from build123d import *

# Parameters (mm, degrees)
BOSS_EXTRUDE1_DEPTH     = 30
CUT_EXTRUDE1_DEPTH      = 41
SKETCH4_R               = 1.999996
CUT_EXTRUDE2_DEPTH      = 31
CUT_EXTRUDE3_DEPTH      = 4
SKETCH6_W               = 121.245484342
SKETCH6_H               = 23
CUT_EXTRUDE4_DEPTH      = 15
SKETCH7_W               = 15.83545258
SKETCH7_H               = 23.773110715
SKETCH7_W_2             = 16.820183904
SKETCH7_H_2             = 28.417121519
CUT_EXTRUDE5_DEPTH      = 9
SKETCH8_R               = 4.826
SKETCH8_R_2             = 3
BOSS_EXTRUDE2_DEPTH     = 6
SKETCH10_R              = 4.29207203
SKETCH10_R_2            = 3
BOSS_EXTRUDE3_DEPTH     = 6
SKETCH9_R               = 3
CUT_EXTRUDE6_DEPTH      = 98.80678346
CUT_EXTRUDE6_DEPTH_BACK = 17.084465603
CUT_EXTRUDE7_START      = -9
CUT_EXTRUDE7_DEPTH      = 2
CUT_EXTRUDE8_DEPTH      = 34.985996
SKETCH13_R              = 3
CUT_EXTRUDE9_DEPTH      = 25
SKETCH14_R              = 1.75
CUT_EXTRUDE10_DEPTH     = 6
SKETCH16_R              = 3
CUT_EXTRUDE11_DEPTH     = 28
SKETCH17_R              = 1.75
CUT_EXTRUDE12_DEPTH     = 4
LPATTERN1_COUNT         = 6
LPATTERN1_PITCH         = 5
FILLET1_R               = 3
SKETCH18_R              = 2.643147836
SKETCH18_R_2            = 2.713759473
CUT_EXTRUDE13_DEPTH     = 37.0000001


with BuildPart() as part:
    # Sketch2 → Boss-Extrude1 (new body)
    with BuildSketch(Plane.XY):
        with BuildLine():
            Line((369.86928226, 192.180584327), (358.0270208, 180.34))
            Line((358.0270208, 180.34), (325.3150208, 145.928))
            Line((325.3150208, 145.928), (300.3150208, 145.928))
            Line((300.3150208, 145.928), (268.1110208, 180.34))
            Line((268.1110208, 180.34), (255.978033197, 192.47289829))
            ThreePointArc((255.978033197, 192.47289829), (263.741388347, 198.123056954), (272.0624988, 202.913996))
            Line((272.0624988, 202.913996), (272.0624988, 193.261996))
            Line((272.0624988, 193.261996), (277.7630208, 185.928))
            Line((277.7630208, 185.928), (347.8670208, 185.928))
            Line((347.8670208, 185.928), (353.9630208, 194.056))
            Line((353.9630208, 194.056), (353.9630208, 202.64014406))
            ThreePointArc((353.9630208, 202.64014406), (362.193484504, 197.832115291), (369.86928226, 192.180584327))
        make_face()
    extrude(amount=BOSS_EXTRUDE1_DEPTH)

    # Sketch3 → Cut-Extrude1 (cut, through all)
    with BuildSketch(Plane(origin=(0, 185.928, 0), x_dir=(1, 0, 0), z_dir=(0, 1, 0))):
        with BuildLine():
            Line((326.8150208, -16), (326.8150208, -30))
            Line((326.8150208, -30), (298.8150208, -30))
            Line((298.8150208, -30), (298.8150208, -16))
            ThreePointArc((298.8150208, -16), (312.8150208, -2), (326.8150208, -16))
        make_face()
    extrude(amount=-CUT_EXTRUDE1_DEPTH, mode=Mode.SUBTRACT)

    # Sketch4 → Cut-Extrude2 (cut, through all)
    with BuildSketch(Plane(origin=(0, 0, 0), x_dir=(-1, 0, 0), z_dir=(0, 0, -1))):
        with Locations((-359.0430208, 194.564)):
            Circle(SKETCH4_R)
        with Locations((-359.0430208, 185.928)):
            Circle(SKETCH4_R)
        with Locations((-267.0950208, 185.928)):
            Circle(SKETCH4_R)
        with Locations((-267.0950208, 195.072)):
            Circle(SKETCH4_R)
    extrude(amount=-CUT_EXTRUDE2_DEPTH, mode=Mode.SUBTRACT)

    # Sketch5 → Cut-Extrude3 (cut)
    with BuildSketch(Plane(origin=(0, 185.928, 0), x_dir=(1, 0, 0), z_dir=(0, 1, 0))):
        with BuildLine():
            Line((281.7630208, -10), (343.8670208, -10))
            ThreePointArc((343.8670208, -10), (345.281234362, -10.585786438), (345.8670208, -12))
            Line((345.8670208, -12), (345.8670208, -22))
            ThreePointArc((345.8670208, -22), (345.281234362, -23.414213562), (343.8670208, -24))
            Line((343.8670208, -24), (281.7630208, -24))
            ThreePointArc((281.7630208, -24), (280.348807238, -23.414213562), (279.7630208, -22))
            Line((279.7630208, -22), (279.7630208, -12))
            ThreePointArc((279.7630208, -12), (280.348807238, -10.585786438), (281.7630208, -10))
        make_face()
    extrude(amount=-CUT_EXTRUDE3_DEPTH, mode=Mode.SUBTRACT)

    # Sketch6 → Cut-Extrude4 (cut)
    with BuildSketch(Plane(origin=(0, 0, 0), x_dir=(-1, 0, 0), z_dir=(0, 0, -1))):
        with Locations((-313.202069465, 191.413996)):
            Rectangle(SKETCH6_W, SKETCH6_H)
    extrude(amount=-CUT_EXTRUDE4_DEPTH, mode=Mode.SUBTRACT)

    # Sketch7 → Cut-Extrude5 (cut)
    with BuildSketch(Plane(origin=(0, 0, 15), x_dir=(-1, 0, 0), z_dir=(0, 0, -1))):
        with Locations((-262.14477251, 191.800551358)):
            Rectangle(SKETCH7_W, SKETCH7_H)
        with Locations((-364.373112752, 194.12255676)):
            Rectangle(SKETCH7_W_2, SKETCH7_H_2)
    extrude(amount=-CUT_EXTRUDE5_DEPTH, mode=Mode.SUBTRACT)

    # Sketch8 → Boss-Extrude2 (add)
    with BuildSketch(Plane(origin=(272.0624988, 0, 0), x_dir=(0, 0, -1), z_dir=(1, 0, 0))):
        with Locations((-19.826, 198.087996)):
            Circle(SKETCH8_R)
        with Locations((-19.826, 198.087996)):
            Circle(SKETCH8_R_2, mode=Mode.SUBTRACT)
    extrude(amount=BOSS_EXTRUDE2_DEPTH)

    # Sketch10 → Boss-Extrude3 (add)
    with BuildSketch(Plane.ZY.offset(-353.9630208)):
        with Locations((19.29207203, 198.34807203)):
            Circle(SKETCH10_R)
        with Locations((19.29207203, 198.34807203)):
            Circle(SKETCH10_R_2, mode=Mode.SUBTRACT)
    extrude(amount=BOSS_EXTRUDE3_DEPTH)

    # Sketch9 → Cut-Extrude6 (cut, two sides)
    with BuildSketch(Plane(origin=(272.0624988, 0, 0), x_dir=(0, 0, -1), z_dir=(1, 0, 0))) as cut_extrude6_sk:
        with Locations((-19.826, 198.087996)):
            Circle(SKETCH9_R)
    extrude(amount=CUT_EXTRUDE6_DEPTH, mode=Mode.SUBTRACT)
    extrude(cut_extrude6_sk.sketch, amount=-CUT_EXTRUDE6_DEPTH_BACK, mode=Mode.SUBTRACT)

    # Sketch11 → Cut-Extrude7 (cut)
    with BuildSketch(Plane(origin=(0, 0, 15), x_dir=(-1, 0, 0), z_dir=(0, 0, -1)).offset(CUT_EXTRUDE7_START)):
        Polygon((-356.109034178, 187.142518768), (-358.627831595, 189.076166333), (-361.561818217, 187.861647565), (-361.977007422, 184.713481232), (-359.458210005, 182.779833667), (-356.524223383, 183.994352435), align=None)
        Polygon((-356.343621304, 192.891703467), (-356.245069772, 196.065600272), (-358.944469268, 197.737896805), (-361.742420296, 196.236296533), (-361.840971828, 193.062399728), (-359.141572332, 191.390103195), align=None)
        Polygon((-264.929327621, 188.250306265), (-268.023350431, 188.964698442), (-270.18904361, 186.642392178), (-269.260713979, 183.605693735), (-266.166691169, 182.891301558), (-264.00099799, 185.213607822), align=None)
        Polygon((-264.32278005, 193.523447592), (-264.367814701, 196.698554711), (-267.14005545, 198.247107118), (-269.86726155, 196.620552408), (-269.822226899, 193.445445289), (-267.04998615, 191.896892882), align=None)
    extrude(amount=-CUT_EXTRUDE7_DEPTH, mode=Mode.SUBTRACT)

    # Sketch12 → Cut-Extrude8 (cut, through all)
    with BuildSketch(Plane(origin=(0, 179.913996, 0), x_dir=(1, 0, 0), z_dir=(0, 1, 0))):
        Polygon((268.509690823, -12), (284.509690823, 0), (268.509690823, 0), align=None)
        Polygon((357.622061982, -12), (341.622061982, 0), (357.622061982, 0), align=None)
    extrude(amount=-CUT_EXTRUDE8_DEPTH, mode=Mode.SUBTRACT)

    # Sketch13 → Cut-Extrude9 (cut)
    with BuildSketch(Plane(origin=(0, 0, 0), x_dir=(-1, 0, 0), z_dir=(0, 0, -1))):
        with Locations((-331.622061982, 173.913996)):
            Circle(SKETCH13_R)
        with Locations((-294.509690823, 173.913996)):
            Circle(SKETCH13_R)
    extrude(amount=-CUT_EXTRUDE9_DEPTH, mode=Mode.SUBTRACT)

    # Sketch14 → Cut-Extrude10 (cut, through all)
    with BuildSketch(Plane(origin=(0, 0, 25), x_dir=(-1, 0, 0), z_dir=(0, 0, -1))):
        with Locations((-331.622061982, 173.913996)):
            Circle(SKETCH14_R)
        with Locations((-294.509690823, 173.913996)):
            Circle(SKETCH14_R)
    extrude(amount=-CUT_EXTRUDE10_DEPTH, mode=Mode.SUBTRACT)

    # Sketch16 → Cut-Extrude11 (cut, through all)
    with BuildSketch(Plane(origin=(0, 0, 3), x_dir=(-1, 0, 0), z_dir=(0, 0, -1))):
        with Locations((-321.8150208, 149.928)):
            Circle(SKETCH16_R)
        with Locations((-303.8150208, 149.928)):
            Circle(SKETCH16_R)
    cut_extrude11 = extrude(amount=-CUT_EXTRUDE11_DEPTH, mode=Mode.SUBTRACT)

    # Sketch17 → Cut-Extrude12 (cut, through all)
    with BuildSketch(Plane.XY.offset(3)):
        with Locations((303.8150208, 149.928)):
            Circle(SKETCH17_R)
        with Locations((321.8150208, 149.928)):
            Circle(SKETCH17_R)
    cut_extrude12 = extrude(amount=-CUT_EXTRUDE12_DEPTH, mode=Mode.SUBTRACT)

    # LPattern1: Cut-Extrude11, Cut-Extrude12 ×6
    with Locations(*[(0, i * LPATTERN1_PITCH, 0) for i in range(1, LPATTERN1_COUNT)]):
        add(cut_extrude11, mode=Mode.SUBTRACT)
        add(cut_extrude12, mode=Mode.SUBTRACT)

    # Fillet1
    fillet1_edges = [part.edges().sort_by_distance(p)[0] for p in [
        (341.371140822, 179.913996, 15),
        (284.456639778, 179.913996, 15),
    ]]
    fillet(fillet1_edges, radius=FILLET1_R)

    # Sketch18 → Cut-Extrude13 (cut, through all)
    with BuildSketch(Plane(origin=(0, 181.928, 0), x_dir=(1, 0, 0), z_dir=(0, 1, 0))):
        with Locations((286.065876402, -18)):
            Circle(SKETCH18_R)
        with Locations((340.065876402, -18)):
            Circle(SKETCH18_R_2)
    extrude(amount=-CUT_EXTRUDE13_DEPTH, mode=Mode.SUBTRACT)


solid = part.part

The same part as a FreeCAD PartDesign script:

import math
import FreeCAD as App
import Part
import Sketcher
from FreeCAD import Vector


def edges_at(feature, points):
    """Names of the edges that pass closest to the given points."""
    edges = feature.Shape.Edges
    near = lambda p: min(range(len(edges)), key=lambda i: edges[i].distToShape(Part.Vertex(*p))[0])
    return sorted({f"Edge{near(p) + 1}" for p in points})


def add_polygon(sketch, points):
    """Adds a closed chain of lines whose ends are joined by coincident constraints."""
    first, n = sketch.GeometryCount, len(points)
    for a, b in zip(points, points[1:] + points[:1]):
        sketch.addGeometry(Part.LineSegment(App.Vector(*a, 0), App.Vector(*b, 0)), False)
    for i in range(n):
        sketch.addConstraint(Sketcher.Constraint("Coincident", first + i, 2, first + (i + 1) % n, 1))

doc = App.newDocument("Part")
body = doc.addObject("PartDesign::Body", "Body")

sketch1 = doc.addObject("Sketcher::SketchObject", "Sketch")
body.addObject(sketch1)
sketch1.AttachmentSupport = (doc.XY_Plane, [""])
sketch1.MapMode = "FlatFace"
sketch1.addGeometry(Part.LineSegment(Vector(358, 180, 0), Vector(370, 192, 0)), False)
sketch1.addGeometry(Part.ArcOfCircle(Part.Circle(Vector(313, 123, 0), Vector(0, 0, 1), 90), math.radians(50.6), math.radians(62.74)), False)
sketch1.addGeometry(Part.LineSegment(Vector(354, 203, 0), Vector(354, 194, 0)), False)
sketch1.addGeometry(Part.LineSegment(Vector(354, 194, 0), Vector(348, 186, 0)), False)
sketch1.addGeometry(Part.LineSegment(Vector(348, 186, 0), Vector(278, 186, 0)), False)
sketch1.addGeometry(Part.LineSegment(Vector(278, 186, 0), Vector(272, 193, 0)), False)
sketch1.addGeometry(Part.LineSegment(Vector(272, 193, 0), Vector(272, 203, 0)), False)
sketch1.addGeometry(Part.ArcOfCircle(Part.Circle(Vector(313, 123, 0), Vector(0, 0, 1), 90), math.radians(116.87), math.radians(129.1)), False)
sketch1.addGeometry(Part.LineSegment(Vector(256, 192, 0), Vector(268, 180, 0)), False)
sketch1.addGeometry(Part.LineSegment(Vector(268, 180, 0), Vector(300, 146, 0)), False)
sketch1.addGeometry(Part.LineSegment(Vector(300, 146, 0), Vector(325, 146, 0)), False)
sketch1.addGeometry(Part.LineSegment(Vector(325, 146, 0), Vector(358, 180, 0)), False)
sketch1.addConstraint(Sketcher.Constraint("Coincident", 0, 2, 1, 1))
sketch1.addConstraint(Sketcher.Constraint("Coincident", 1, 2, 2, 1))
sketch1.addConstraint(Sketcher.Constraint("Coincident", 2, 2, 3, 1))
sketch1.addConstraint(Sketcher.Constraint("Coincident", 3, 2, 4, 1))
sketch1.addConstraint(Sketcher.Constraint("Coincident", 4, 2, 5, 1))
sketch1.addConstraint(Sketcher.Constraint("Coincident", 5, 2, 6, 1))
sketch1.addConstraint(Sketcher.Constraint("Coincident", 6, 2, 7, 1))
sketch1.addConstraint(Sketcher.Constraint("Coincident", 7, 2, 8, 1))
sketch1.addConstraint(Sketcher.Constraint("Coincident", 8, 2, 9, 1))
sketch1.addConstraint(Sketcher.Constraint("Coincident", 9, 2, 10, 1))
sketch1.addConstraint(Sketcher.Constraint("Coincident", 10, 2, 11, 1))
sketch1.addConstraint(Sketcher.Constraint("Coincident", 11, 2, 0, 1))
sketch1.addConstraint(Sketcher.Constraint("Vertical", 2))
sketch1.addConstraint(Sketcher.Constraint("Horizontal", 4))
sketch1.addConstraint(Sketcher.Constraint("Vertical", 6))
sketch1.addConstraint(Sketcher.Constraint("Horizontal", 10))
sketch1.addConstraint(Sketcher.Constraint("Coincident", 7, 3, 1, 3))
sketch1.addConstraint(Sketcher.Constraint("Equal", 1, 7))
sketch1.addConstraint(Sketcher.Constraint("Horizontal", 8, 2, 11, 2))
sketch1.addConstraint(Sketcher.Constraint("Radius", 1, 89.999998))
sketch1.addConstraint(Sketcher.Constraint("DistanceX", 10, 1, 10, 2, 25.0))
sketch1.addConstraint(Sketcher.Constraint("DistanceY", 9, 2, 4, 2, 40.0))
sketch1.addConstraint(Sketcher.Constraint("DistanceX", 4, 2, 2, 2, 76.2))
sketch1.addConstraint(Sketcher.Constraint("Distance", 3, 10.16))
sketch1.addConstraint(Sketcher.Constraint("DistanceX", 4, 2, 4, 1, 70.104))
sketch1.addConstraint(Sketcher.Constraint("DistanceY", 6, 1, 6, 2, 9.652))
sketch1.addConstraint(Sketcher.Constraint("DistanceY", -1, 1, 8, 2, 180.34))
sketch1.addConstraint(Sketcher.Constraint("DistanceX", 3, 2, 11, 2, 10.16))
sketch1.addConstraint(Sketcher.Constraint("DistanceY", -1, 1, 2, 2, 194.056))
sketch1.addConstraint(Sketcher.Constraint("DistanceX", 8, 2, 4, 2, 9.652))
sketch1.addConstraint(Sketcher.Constraint("DistanceX", 4, 2, 9, 2, 22.552))
sketch1.addConstraint(Sketcher.Constraint("Distance", 0, 16.746301))
sketch1.addConstraint(Sketcher.Constraint("DistanceX", -1, 1, 5, 2, 272.062499))
sketch1.addConstraint(Sketcher.Constraint("DistanceY", -1, 1, 7, 2, 192.472898))
sketch1.addConstraint(Sketcher.Constraint("DistanceX", 1, 3, 0, 2, 57.124499))
sketch1.addConstraint(Sketcher.Constraint("Distance", 5, 9.288888))
sketch1.addConstraint(Sketcher.Constraint("DistanceY", 2, 2, 2, 1, 8.584144))
pad1 = doc.addObject("PartDesign::Pad", "Pad")
body.addObject(pad1)
pad1.Profile = sketch1
pad1.Length = 30

sketch2 = doc.addObject("Sketcher::SketchObject", "Sketch001")
body.addObject(sketch2)
sketch2.AttachmentSupport = (doc.XZ_Plane, [""])
sketch2.MapMode = "FlatFace"
sketch2.AttachmentOffset = App.Placement(Vector(0, 0, -185.928), App.Rotation())
sketch2.addGeometry(Part.LineSegment(Vector(327, 30, 0), Vector(327, 16, 0)), False)
sketch2.addGeometry(Part.ArcOfCircle(Part.Circle(Vector(313, 16, 0), Vector(0, 0, 1), 14), math.radians(180), math.radians(360)), False)
sketch2.addGeometry(Part.LineSegment(Vector(299, 16, 0), Vector(299, 30, 0)), False)
sketch2.addGeometry(Part.LineSegment(Vector(299, 30, 0), Vector(327, 30, 0)), False)
sketch2.addConstraint(Sketcher.Constraint("Tangent", 0, 2, 1, 2))
sketch2.addConstraint(Sketcher.Constraint("Tangent", 1, 1, 2, 1))
sketch2.addConstraint(Sketcher.Constraint("Coincident", 2, 2, 3, 1))
sketch2.addConstraint(Sketcher.Constraint("Coincident", 3, 2, 0, 1))
sketch2.addConstraint(Sketcher.Constraint("Vertical", 0))
sketch2.addConstraint(Sketcher.Constraint("Vertical", 2))
sketch2.addConstraint(Sketcher.Constraint("Horizontal", 3))
sketch2.addConstraint(Sketcher.Constraint("Radius", 1, 14.0))
sketch2.addConstraint(Sketcher.Constraint("DistanceY", 0, 2, 0, 1, 14.0))
sketch2.addConstraint(Sketcher.Constraint("DistanceY", -1, 1, 1, 3, 16.0))
sketch2.addConstraint(Sketcher.Constraint("DistanceX", -1, 1, 1, 3, 312.815021))
pocket1 = doc.addObject("PartDesign::Pocket", "Pocket")
body.addObject(pocket1)
pocket1.Profile = sketch2
pocket1.Type = "ThroughAll"
pocket1.Reversed = True

sketch3 = doc.addObject("Sketcher::SketchObject", "Sketch002")
body.addObject(sketch3)
sketch3.AttachmentSupport = (doc.XY_Plane, [""])
sketch3.MapMode = "FlatFace"
sketch3.addGeometry(Part.Circle(Vector(359, 194.6, 0), Vector(0, 0, 1), 2), False)
sketch3.addGeometry(Part.Circle(Vector(359, 185.9, 0), Vector(0, 0, 1), 2), False)
sketch3.addGeometry(Part.Circle(Vector(267.1, 185.9, 0), Vector(0, 0, 1), 2), False)
sketch3.addGeometry(Part.Circle(Vector(267.1, 195.1, 0), Vector(0, 0, 1), 2), False)
sketch3.addConstraint(Sketcher.Constraint("Equal", 0, 1))
sketch3.addConstraint(Sketcher.Constraint("Equal", 1, 2))
sketch3.addConstraint(Sketcher.Constraint("Equal", 2, 3))
sketch3.addConstraint(Sketcher.Constraint("Horizontal", 1, 3, 2, 3))
sketch3.addConstraint(Sketcher.Constraint("Vertical", 0, 3, 1, 3))
sketch3.addConstraint(Sketcher.Constraint("Vertical", 2, 3, 3, 3))
sketch3.addConstraint(Sketcher.Constraint("Diameter", 0, 3.999992))
sketch3.addConstraint(Sketcher.Constraint("DistanceY", -1, 1, 0, 3, 194.564))
sketch3.addConstraint(Sketcher.Constraint("DistanceY", -1, 1, 1, 3, 185.928))
sketch3.addConstraint(Sketcher.Constraint("DistanceY", -1, 1, 3, 3, 195.072))
sketch3.addConstraint(Sketcher.Constraint("DistanceX", 2, 3, 1, 3, 91.948))
sketch3.addConstraint(Sketcher.Constraint("DistanceX", -1, 1, 0, 3, 359.043021))
pocket2 = doc.addObject("PartDesign::Pocket", "Pocket001")
body.addObject(pocket2)
pocket2.Profile = sketch3
pocket2.Type = "ThroughAll"
pocket2.Reversed = True

sketch4 = doc.addObject("Sketcher::SketchObject", "Sketch003")
body.addObject(sketch4)
sketch4.AttachmentSupport = (doc.XZ_Plane, [""])
sketch4.MapMode = "FlatFace"
sketch4.AttachmentOffset = App.Placement(Vector(0, 0, -185.928), App.Rotation())
sketch4.addGeometry(Part.LineSegment(Vector(343.9, 10, 0), Vector(281.8, 10, 0)), False)
sketch4.addGeometry(Part.ArcOfCircle(Part.Circle(Vector(281.8, 12, 0), Vector(0, 0, 1), 2), math.radians(-180), math.radians(-90)), False)
sketch4.addGeometry(Part.LineSegment(Vector(279.8, 12, 0), Vector(279.8, 22, 0)), False)
sketch4.addGeometry(Part.ArcOfCircle(Part.Circle(Vector(281.8, 22, 0), Vector(0, 0, 1), 2), math.radians(90), math.radians(180)), False)
sketch4.addGeometry(Part.LineSegment(Vector(281.8, 24, 0), Vector(343.9, 24, 0)), False)
sketch4.addGeometry(Part.ArcOfCircle(Part.Circle(Vector(343.9, 22, 0), Vector(0, 0, 1), 2), math.radians(0), math.radians(90)), False)
sketch4.addGeometry(Part.LineSegment(Vector(345.9, 22, 0), Vector(345.9, 12, 0)), False)
sketch4.addGeometry(Part.ArcOfCircle(Part.Circle(Vector(343.9, 12, 0), Vector(0, 0, 1), 2), math.radians(-90), math.radians(0)), False)
sketch4.addConstraint(Sketcher.Constraint("Tangent", 0, 2, 1, 2))
sketch4.addConstraint(Sketcher.Constraint("Tangent", 1, 1, 2, 1))
sketch4.addConstraint(Sketcher.Constraint("Tangent", 2, 2, 3, 2))
sketch4.addConstraint(Sketcher.Constraint("Tangent", 3, 1, 4, 1))
sketch4.addConstraint(Sketcher.Constraint("Tangent", 4, 2, 5, 2))
sketch4.addConstraint(Sketcher.Constraint("Tangent", 5, 1, 6, 1))
sketch4.addConstraint(Sketcher.Constraint("Tangent", 6, 2, 7, 2))
sketch4.addConstraint(Sketcher.Constraint("Tangent", 7, 1, 0, 1))
sketch4.addConstraint(Sketcher.Constraint("Horizontal", 0))
sketch4.addConstraint(Sketcher.Constraint("Vertical", 2))
sketch4.addConstraint(Sketcher.Constraint("Horizontal", 4))
sketch4.addConstraint(Sketcher.Constraint("Vertical", 6))
sketch4.addConstraint(Sketcher.Constraint("Equal", 1, 3))
sketch4.addConstraint(Sketcher.Constraint("Equal", 3, 5))
sketch4.addConstraint(Sketcher.Constraint("Equal", 5, 7))
sketch4.addConstraint(Sketcher.Constraint("Radius", 1, 2.0))
sketch4.addConstraint(Sketcher.Constraint("DistanceY", 2, 1, 2, 2, 10.0))
sketch4.addConstraint(Sketcher.Constraint("DistanceY", -1, 1, 1, 3, 12.0))
sketch4.addConstraint(Sketcher.Constraint("DistanceX", 0, 2, 0, 1, 62.104))
sketch4.addConstraint(Sketcher.Constraint("DistanceX", -1, 1, 1, 3, 281.763021))
pocket3 = doc.addObject("PartDesign::Pocket", "Pocket002")
body.addObject(pocket3)
pocket3.Profile = sketch4
pocket3.Length = 4
pocket3.Reversed = True

sketch5 = doc.addObject("Sketcher::SketchObject", "Sketch004")
body.addObject(sketch5)
sketch5.AttachmentSupport = (doc.XY_Plane, [""])
sketch5.MapMode = "FlatFace"
add_polygon(sketch5, [(374, 203), (374, 180), (253, 180), (253, 203)])
sketch5.addConstraint(Sketcher.Constraint("Vertical", 0))
sketch5.addConstraint(Sketcher.Constraint("Horizontal", 1))
sketch5.addConstraint(Sketcher.Constraint("Vertical", 2))
sketch5.addConstraint(Sketcher.Constraint("Horizontal", 3))
sketch5.addConstraint(Sketcher.Constraint("DistanceY", 0, 2, 0, 1, 23.0))
sketch5.addConstraint(Sketcher.Constraint("DistanceX", 1, 2, 1, 1, 121.245484))
sketch5.addConstraint(Sketcher.Constraint("DistanceX", -1, 1, 0, 2, 373.824812))
sketch5.addConstraint(Sketcher.Constraint("DistanceY", -1, 1, 0, 2, 179.913996))
pocket4 = doc.addObject("PartDesign::Pocket", "Pocket003")
body.addObject(pocket4)
pocket4.Profile = sketch5
pocket4.Length = 15
pocket4.Reversed = True

sketch6 = doc.addObject("Sketcher::SketchObject", "Sketch005")
body.addObject(sketch6)
sketch6.AttachmentSupport = (doc.XY_Plane, [""])
sketch6.MapMode = "FlatFace"
sketch6.AttachmentOffset = App.Placement(Vector(0, 0, 15), App.Rotation())
add_polygon(sketch6, [(270, 204), (270, 180), (254, 180), (254, 204)])
add_polygon(sketch6, [(373, 208), (373, 180), (356, 180), (356, 208)])
sketch6.addConstraint(Sketcher.Constraint("Vertical", 0))
sketch6.addConstraint(Sketcher.Constraint("Horizontal", 1))
sketch6.addConstraint(Sketcher.Constraint("Vertical", 2))
sketch6.addConstraint(Sketcher.Constraint("Horizontal", 3))
sketch6.addConstraint(Sketcher.Constraint("Vertical", 4))
sketch6.addConstraint(Sketcher.Constraint("Horizontal", 5))
sketch6.addConstraint(Sketcher.Constraint("Vertical", 6))
sketch6.addConstraint(Sketcher.Constraint("Horizontal", 7))
sketch6.addConstraint(Sketcher.Constraint("Horizontal", 1, 2, 4, 2))
sketch6.addConstraint(Sketcher.Constraint("DistanceY", 0, 2, 0, 1, 23.773111))
sketch6.addConstraint(Sketcher.Constraint("DistanceY", 4, 2, 4, 1, 28.417122))
sketch6.addConstraint(Sketcher.Constraint("DistanceX", -1, 1, 0, 2, 270.062499))
sketch6.addConstraint(Sketcher.Constraint("DistanceX", 1, 2, 1, 1, 15.835453))
sketch6.addConstraint(Sketcher.Constraint("DistanceX", 5, 2, 5, 1, 16.820184))
sketch6.addConstraint(Sketcher.Constraint("DistanceX", -1, 1, 5, 2, 355.963021))
sketch6.addConstraint(Sketcher.Constraint("DistanceY", -1, 1, 0, 2, 179.913996))
pocket5 = doc.addObject("PartDesign::Pocket", "Pocket004")
body.addObject(pocket5)
pocket5.Profile = sketch6
pocket5.Length = 9
pocket5.Reversed = True

sketch7 = doc.addObject("Sketcher::SketchObject", "Sketch006")
body.addObject(sketch7)
sketch7.AttachmentSupport = (doc.YZ_Plane, [""])
sketch7.MapMode = "FlatFace"
sketch7.AttachmentOffset = App.Placement(Vector(0, 0, 272.062499), App.Rotation())
sketch7.addGeometry(Part.Circle(Vector(198.1, 19.8, 0), Vector(0, 0, 1), 4.8), False)
sketch7.addGeometry(Part.Circle(Vector(198.1, 19.8, 0), Vector(0, 0, 1), 3), False)
sketch7.addConstraint(Sketcher.Constraint("Coincident", 1, 3, 0, 3))
sketch7.addConstraint(Sketcher.Constraint("Diameter", 1, 6.0))
sketch7.addConstraint(Sketcher.Constraint("Diameter", 0, 9.652))
sketch7.addConstraint(Sketcher.Constraint("DistanceY", -1, 1, 0, 3, 19.826))
sketch7.addConstraint(Sketcher.Constraint("DistanceX", -1, 1, 0, 3, 198.087996))
pad2 = doc.addObject("PartDesign::Pad", "Pad001")
body.addObject(pad2)
pad2.Profile = sketch7
pad2.Length = 6

sketch8 = doc.addObject("Sketcher::SketchObject", "Sketch007")
body.addObject(sketch8)
sketch8.AttachmentSupport = (doc.YZ_Plane, [""])
sketch8.MapMode = "FlatFace"
sketch8.AttachmentOffset = App.Placement(Vector(0, 0, 353.963021), App.Rotation())
sketch8.addGeometry(Part.Circle(Vector(198.3, 19.3, 0), Vector(0, 0, 1), 4.3), False)
sketch8.addGeometry(Part.Circle(Vector(198.3, 19.3, 0), Vector(0, 0, 1), 3), False)
sketch8.addConstraint(Sketcher.Constraint("Coincident", 1, 3, 0, 3))
sketch8.addConstraint(Sketcher.Constraint("Diameter", 1, 6.0))
sketch8.addConstraint(Sketcher.Constraint("Diameter", 0, 8.584144))
sketch8.addConstraint(Sketcher.Constraint("DistanceX", -1, 1, 0, 3, 198.348072))
sketch8.addConstraint(Sketcher.Constraint("DistanceY", -1, 1, 0, 3, 19.292072))
pad3 = doc.addObject("PartDesign::Pad", "Pad002")
body.addObject(pad3)
pad3.Profile = sketch8
pad3.Length = 6
pad3.Reversed = True

sketch9 = doc.addObject("Sketcher::SketchObject", "Sketch008")
body.addObject(sketch9)
sketch9.AttachmentSupport = (doc.YZ_Plane, [""])
sketch9.MapMode = "FlatFace"
sketch9.AttachmentOffset = App.Placement(Vector(0, 0, 272.062499), App.Rotation())
sketch9.addGeometry(Part.Circle(Vector(198.1, 19.8, 0), Vector(0, 0, 1), 3), False)
sketch9.addConstraint(Sketcher.Constraint("Diameter", 0, 6.0))
sketch9.addConstraint(Sketcher.Constraint("DistanceY", -1, 1, 0, 3, 19.826))
sketch9.addConstraint(Sketcher.Constraint("DistanceX", -1, 1, 0, 3, 198.087996))
pocket6 = doc.addObject("PartDesign::Pocket", "Pocket005")
body.addObject(pocket6)
pocket6.Profile = sketch9
pocket6.Type = "ThroughAll"
pocket6.Midplane = True

sketch10 = doc.addObject("Sketcher::SketchObject", "Sketch009")
body.addObject(sketch10)
sketch10.AttachmentSupport = (doc.XY_Plane, [""])
sketch10.MapMode = "FlatFace"
sketch10.AttachmentOffset = App.Placement(Vector(0, 0, 24), App.Rotation())
add_polygon(sketch10, [(356.1, 187.1), (358.6, 189.1), (361.6, 187.9), (362, 184.7), (359.5, 182.8), (356.5, 184)])
add_polygon(sketch10, [(356.3, 192.9), (356.2, 196.1), (358.9, 197.7), (361.7, 196.2), (361.8, 193.1), (359.1, 191.4)])
add_polygon(sketch10, [(264.9, 188.3), (268, 189), (270.2, 186.6), (269.3, 183.6), (266.2, 182.9), (264, 185.2)])
add_polygon(sketch10, [(264.3, 193.5), (264.4, 196.7), (267.1, 198.2), (269.9, 196.6), (269.8, 193.4), (267, 191.9)])
sketch10.addConstraint(Sketcher.Constraint("Parallel", 0, 3))
sketch10.addConstraint(Sketcher.Constraint("Parallel", 1, 4))
sketch10.addConstraint(Sketcher.Constraint("Parallel", 2, 5))
sketch10.addConstraint(Sketcher.Constraint("Parallel", 6, 9))
sketch10.addConstraint(Sketcher.Constraint("Parallel", 7, 10))
sketch10.addConstraint(Sketcher.Constraint("Parallel", 8, 11))
sketch10.addConstraint(Sketcher.Constraint("Parallel", 12, 15))
sketch10.addConstraint(Sketcher.Constraint("Parallel", 13, 16))
sketch10.addConstraint(Sketcher.Constraint("Parallel", 14, 17))
sketch10.addConstraint(Sketcher.Constraint("Parallel", 18, 21))
sketch10.addConstraint(Sketcher.Constraint("Parallel", 19, 22))
sketch10.addConstraint(Sketcher.Constraint("Parallel", 20, 23))
sketch10.addConstraint(Sketcher.Constraint("Equal", 0, 1))
sketch10.addConstraint(Sketcher.Constraint("Equal", 1, 2))
sketch10.addConstraint(Sketcher.Constraint("Equal", 2, 3))
sketch10.addConstraint(Sketcher.Constraint("Equal", 5, 6))
sketch10.addConstraint(Sketcher.Constraint("Equal", 6, 7))
sketch10.addConstraint(Sketcher.Constraint("Equal", 7, 8))
sketch10.addConstraint(Sketcher.Constraint("Equal", 8, 9))
sketch10.addConstraint(Sketcher.Constraint("Equal", 11, 12))
sketch10.addConstraint(Sketcher.Constraint("Equal", 12, 13))
sketch10.addConstraint(Sketcher.Constraint("Equal", 13, 14))
sketch10.addConstraint(Sketcher.Constraint("Equal", 14, 15))
sketch10.addConstraint(Sketcher.Constraint("Equal", 17, 18))
sketch10.addConstraint(Sketcher.Constraint("Equal", 18, 19))
sketch10.addConstraint(Sketcher.Constraint("Equal", 19, 20))
sketch10.addConstraint(Sketcher.Constraint("Equal", 20, 21))
sketch10.addConstraint(Sketcher.Constraint("DistanceY", -1, 1, 6, 2, 196.0656))
sketch10.addConstraint(Sketcher.Constraint("DistanceY", -1, 1, 9, 2, 193.0624))
sketch10.addConstraint(Sketcher.Constraint("DistanceY", -1, 1, 12, 2, 188.964698))
sketch10.addConstraint(Sketcher.Constraint("DistanceY", -1, 1, 15, 2, 182.891302))
sketch10.addConstraint(Sketcher.Constraint("DistanceX", 6, 2, 7, 2, 2.699399))
sketch10.addConstraint(Sketcher.Constraint("DistanceY", 8, 2, 7, 2, 1.5016))
sketch10.addConstraint(Sketcher.Constraint("DistanceY", 14, 2, 13, 2, 3.036698))
sketch10.addConstraint(Sketcher.Constraint("DistanceY", 17, 2, 19, 2, 9.996801))
sketch10.addConstraint(Sketcher.Constraint("DistanceX", -1, 1, 0, 2, 358.627832))
sketch10.addConstraint(Sketcher.Constraint("DistanceX", -1, 1, 1, 2, 361.561818))
sketch10.addConstraint(Sketcher.Constraint("DistanceY", -1, 1, 2, 2, 184.713481))
sketch10.addConstraint(Sketcher.Constraint("DistanceX", -1, 1, 3, 2, 359.45821))
sketch10.addConstraint(Sketcher.Constraint("DistanceY", -1, 1, 5, 2, 187.142519))
sketch10.addConstraint(Sketcher.Constraint("DistanceX", -1, 1, 6, 2, 356.24507))
sketch10.addConstraint(Sketcher.Constraint("DistanceX", -1, 1, 8, 2, 361.74242))
sketch10.addConstraint(Sketcher.Constraint("DistanceX", -1, 1, 12, 2, 268.02335))
sketch10.addConstraint(Sketcher.Constraint("DistanceX", -1, 1, 15, 2, 266.166691))
sketch10.addConstraint(Sketcher.Constraint("DistanceX", -1, 1, 20, 2, 269.867262))
sketch10.addConstraint(Sketcher.Constraint("DistanceX", -1, 1, 23, 2, 264.32278))
sketch10.addConstraint(Sketcher.Constraint("DistanceY", 17, 2, 18, 2, 8.448248))
sketch10.addConstraint(Sketcher.Constraint("DistanceX", 18, 2, 13, 2, 5.821229))
pocket7 = doc.addObject("PartDesign::Pocket", "Pocket006")
body.addObject(pocket7)
pocket7.Profile = sketch10
pocket7.Length = 2
pocket7.Reversed = True

sketch11 = doc.addObject("Sketcher::SketchObject", "Sketch010")
body.addObject(sketch11)
sketch11.AttachmentSupport = (doc.XZ_Plane, [""])
sketch11.MapMode = "FlatFace"
sketch11.AttachmentOffset = App.Placement(Vector(0, 0, -179.913996), App.Rotation())
add_polygon(sketch11, [(269, 12), (285, 0), (269, 0)])
add_polygon(sketch11, [(342, 0), (358, 12), (358, 0)])
sketch11.addConstraint(Sketcher.Constraint("Horizontal", 1))
sketch11.addConstraint(Sketcher.Constraint("Vertical", 2))
sketch11.addConstraint(Sketcher.Constraint("Vertical", 4))
sketch11.addConstraint(Sketcher.Constraint("Horizontal", 5))
sketch11.addConstraint(Sketcher.Constraint("PointOnObject", 0, 2, -1))
sketch11.addConstraint(Sketcher.Constraint("PointOnObject", 4, 2, -1))
sketch11.addConstraint(Sketcher.Constraint("Horizontal", 2, 2, 3, 2))
sketch11.addConstraint(Sketcher.Constraint("Equal", 1, 5))
sketch11.addConstraint(Sketcher.Constraint("DistanceX", 1, 2, 1, 1, 16.0))
sketch11.addConstraint(Sketcher.Constraint("DistanceY", 2, 1, 2, 2, 12.0))
sketch11.addConstraint(Sketcher.Constraint("DistanceX", -1, 1, 0, 2, 284.509691))
sketch11.addConstraint(Sketcher.Constraint("DistanceX", -1, 1, 3, 2, 357.622062))
pocket8 = doc.addObject("PartDesign::Pocket", "Pocket007")
body.addObject(pocket8)
pocket8.Profile = sketch11
pocket8.Type = "ThroughAll"
pocket8.Reversed = True

sketch12 = doc.addObject("Sketcher::SketchObject", "Sketch011")
body.addObject(sketch12)
sketch12.AttachmentSupport = (doc.XY_Plane, [""])
sketch12.MapMode = "FlatFace"
sketch12.addGeometry(Part.Circle(Vector(331.6, 173.9, 0), Vector(0, 0, 1), 3), False)
sketch12.addGeometry(Part.Circle(Vector(294.5, 173.9, 0), Vector(0, 0, 1), 3), False)
sketch12.addConstraint(Sketcher.Constraint("Equal", 0, 1))
sketch12.addConstraint(Sketcher.Constraint("Horizontal", 0, 3, 1, 3))
sketch12.addConstraint(Sketcher.Constraint("Diameter", 0, 6.0))
sketch12.addConstraint(Sketcher.Constraint("DistanceX", -1, 1, 0, 3, 331.622062))
sketch12.addConstraint(Sketcher.Constraint("DistanceX", -1, 1, 1, 3, 294.509691))
sketch12.addConstraint(Sketcher.Constraint("DistanceY", -1, 1, 0, 3, 173.913996))
pocket9 = doc.addObject("PartDesign::Pocket", "Pocket008")
body.addObject(pocket9)
pocket9.Profile = sketch12
pocket9.Length = 25
pocket9.Reversed = True

sketch13 = doc.addObject("Sketcher::SketchObject", "Sketch012")
body.addObject(sketch13)
sketch13.AttachmentSupport = (doc.XY_Plane, [""])
sketch13.MapMode = "FlatFace"
sketch13.AttachmentOffset = App.Placement(Vector(0, 0, 25), App.Rotation())
sketch13.addGeometry(Part.Circle(Vector(331.6, 173.9, 0), Vector(0, 0, 1), 1.8), False)
sketch13.addGeometry(Part.Circle(Vector(294.5, 173.9, 0), Vector(0, 0, 1), 1.8), False)
sketch13.addConstraint(Sketcher.Constraint("Equal", 0, 1))
sketch13.addConstraint(Sketcher.Constraint("Horizontal", 0, 3, 1, 3))
sketch13.addConstraint(Sketcher.Constraint("Diameter", 0, 3.5))
sketch13.addConstraint(Sketcher.Constraint("DistanceX", -1, 1, 0, 3, 331.622062))
sketch13.addConstraint(Sketcher.Constraint("DistanceX", -1, 1, 1, 3, 294.509691))
sketch13.addConstraint(Sketcher.Constraint("DistanceY", -1, 1, 0, 3, 173.913996))
pocket10 = doc.addObject("PartDesign::Pocket", "Pocket009")
body.addObject(pocket10)
pocket10.Profile = sketch13
pocket10.Type = "ThroughAll"
pocket10.Reversed = True

sketch14 = doc.addObject("Sketcher::SketchObject", "Sketch013")
body.addObject(sketch14)
sketch14.AttachmentSupport = (doc.XY_Plane, [""])
sketch14.MapMode = "FlatFace"
sketch14.AttachmentOffset = App.Placement(Vector(0, 0, 3), App.Rotation())
sketch14.addGeometry(Part.Circle(Vector(321.8, 149.9, 0), Vector(0, 0, 1), 3), False)
sketch14.addGeometry(Part.Circle(Vector(303.8, 149.9, 0), Vector(0, 0, 1), 3), False)
sketch14.addConstraint(Sketcher.Constraint("Equal", 0, 1))
sketch14.addConstraint(Sketcher.Constraint("Horizontal", 0, 3, 1, 3))
sketch14.addConstraint(Sketcher.Constraint("Diameter", 0, 6.0))
sketch14.addConstraint(Sketcher.Constraint("DistanceX", 1, 3, 0, 3, 18.0))
sketch14.addConstraint(Sketcher.Constraint("DistanceY", -1, 1, 0, 3, 149.928))
sketch14.addConstraint(Sketcher.Constraint("DistanceX", -1, 1, 0, 3, 321.815021))
pocket11 = doc.addObject("PartDesign::Pocket", "Pocket010")
body.addObject(pocket11)
pocket11.Profile = sketch14
pocket11.Type = "ThroughAll"
pocket11.Reversed = True

sketch15 = doc.addObject("Sketcher::SketchObject", "Sketch014")
body.addObject(sketch15)
sketch15.AttachmentSupport = (doc.XY_Plane, [""])
sketch15.MapMode = "FlatFace"
sketch15.AttachmentOffset = App.Placement(Vector(0, 0, 3), App.Rotation())
sketch15.addGeometry(Part.Circle(Vector(303.8, 149.9, 0), Vector(0, 0, 1), 1.8), False)
sketch15.addGeometry(Part.Circle(Vector(321.8, 149.9, 0), Vector(0, 0, 1), 1.8), False)
sketch15.addConstraint(Sketcher.Constraint("Equal", 0, 1))
sketch15.addConstraint(Sketcher.Constraint("Horizontal", 0, 3, 1, 3))
sketch15.addConstraint(Sketcher.Constraint("Diameter", 0, 3.5))
sketch15.addConstraint(Sketcher.Constraint("DistanceX", 0, 3, 1, 3, 18.0))
sketch15.addConstraint(Sketcher.Constraint("DistanceY", -1, 1, 0, 3, 149.928))
sketch15.addConstraint(Sketcher.Constraint("DistanceX", -1, 1, 0, 3, 303.815021))
pocket12 = doc.addObject("PartDesign::Pocket", "Pocket011")
body.addObject(pocket12)
pocket12.Profile = sketch15
pocket12.Type = "ThroughAll"
doc.recompute()

linearpattern = doc.addObject("PartDesign::LinearPattern", "LinearPattern")
body.addObject(linearpattern)
linearpattern.Originals = [pocket11, pocket12]
linearpattern.Direction = (doc.Y_Axis, [""])
linearpattern.Mode = "offset"
linearpattern.Offset = 5
linearpattern.Occurrences = 6
body.Tip = linearpattern
doc.recompute()

fillet = doc.addObject("PartDesign::Fillet", "Fillet")
body.addObject(fillet)
fillet.Base = (linearpattern, edges_at(linearpattern, [(341.371, 179.914, 15), (284.457, 179.914, 15)]))
fillet.Radius = 3

sketch16 = doc.addObject("Sketcher::SketchObject", "Sketch015")
body.addObject(sketch16)
sketch16.AttachmentSupport = (doc.XZ_Plane, [""])
sketch16.MapMode = "FlatFace"
sketch16.AttachmentOffset = App.Placement(Vector(0, 0, -181.928), App.Rotation())
sketch16.addGeometry(Part.Circle(Vector(286.1, 18, 0), Vector(0, 0, 1), 2.6), False)
sketch16.addGeometry(Part.Circle(Vector(340.1, 18, 0), Vector(0, 0, 1), 2.7), False)
sketch16.addConstraint(Sketcher.Constraint("Horizontal", 0, 3, 1, 3))
sketch16.addConstraint(Sketcher.Constraint("DistanceY", -1, 1, 0, 3, 18.0))
sketch16.addConstraint(Sketcher.Constraint("DistanceX", 0, 3, 1, 3, 54.0))
sketch16.addConstraint(Sketcher.Constraint("Diameter", 1, 5.427519))
sketch16.addConstraint(Sketcher.Constraint("Diameter", 0, 5.286296))
sketch16.addConstraint(Sketcher.Constraint("DistanceX", -1, 1, 0, 3, 286.065876))
pocket13 = doc.addObject("PartDesign::Pocket", "Pocket012")
body.addObject(pocket13)
pocket13.Profile = sketch16
pocket13.Type = "ThroughAll"
pocket13.Reversed = True

doc.recompute()
